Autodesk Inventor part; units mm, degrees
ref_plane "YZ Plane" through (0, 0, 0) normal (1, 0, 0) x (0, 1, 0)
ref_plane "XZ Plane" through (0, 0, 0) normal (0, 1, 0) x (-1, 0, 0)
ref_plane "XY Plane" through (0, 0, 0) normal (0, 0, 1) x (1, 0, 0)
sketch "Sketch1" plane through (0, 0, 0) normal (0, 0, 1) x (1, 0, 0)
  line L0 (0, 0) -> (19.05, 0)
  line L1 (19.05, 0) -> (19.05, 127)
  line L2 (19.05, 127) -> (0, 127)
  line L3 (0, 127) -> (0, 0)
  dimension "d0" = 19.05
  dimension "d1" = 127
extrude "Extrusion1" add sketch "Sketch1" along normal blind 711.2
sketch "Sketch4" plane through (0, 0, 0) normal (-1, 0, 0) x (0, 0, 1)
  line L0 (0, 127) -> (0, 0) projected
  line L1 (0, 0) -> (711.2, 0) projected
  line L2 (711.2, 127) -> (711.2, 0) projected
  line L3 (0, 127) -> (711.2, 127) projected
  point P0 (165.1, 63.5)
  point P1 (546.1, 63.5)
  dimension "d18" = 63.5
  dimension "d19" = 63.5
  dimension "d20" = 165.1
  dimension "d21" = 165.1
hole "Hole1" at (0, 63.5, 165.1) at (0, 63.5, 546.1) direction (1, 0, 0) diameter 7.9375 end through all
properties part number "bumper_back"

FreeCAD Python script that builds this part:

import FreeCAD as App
import Part
import Sketcher
Q = App.Units.Quantity


def add_polygon(sketch, points):
    """Adds a closed chain of lines whose ends are joined by coincident constraints."""
    first, n = sketch.GeometryCount, len(points)
    for a, b in zip(points, points[1:] + points[:1]):
        sketch.addGeometry(Part.LineSegment(App.Vector(*a, 0), App.Vector(*b, 0)), False)
    for i in range(n):
        sketch.addConstraint(Sketcher.Constraint("Coincident", first + i, 2, first + (i + 1) % n, 1))

doc = App.newDocument("Part")
body = doc.addObject("PartDesign::Body", "Body")

# Sketch on XY plane
sketch1 = doc.addObject("Sketcher::SketchObject", "Sketch")
body.addObject(sketch1)
sketch1.AttachmentSupport = (doc.XY_Plane, [""])
sketch1.MapMode = "FlatFace"
add_polygon(sketch1, [(0, 127), (0, 0), (19, 0), (19, 127)])  # lines 0-3
sketch1.addConstraint([
    Sketcher.Constraint("Vertical", 0),
    Sketcher.Constraint("Horizontal", 1),
    Sketcher.Constraint("Vertical", 2),
    Sketcher.Constraint("Horizontal", 3),
    Sketcher.Constraint("Coincident", 0, 2, -1, 1),
    Sketcher.Constraint("DistanceY", 0, 2, 0, 1, Q("5 in")),
    Sketcher.Constraint("DistanceX", 1, 1, 1, 2, Q("0.75 in")),
])
pad1 = doc.addObject("PartDesign::Pad", "Pad")
body.addObject(pad1)
pad1.Profile = sketch1
pad1.Length = Q("28 in")

# Sketch on YZ plane
sketch2 = doc.addObject("Sketcher::SketchObject", "Sketch001")
body.addObject(sketch2)
sketch2.AttachmentSupport = (doc.YZ_Plane, [""])
sketch2.MapMode = "FlatFace"
sketch2.addGeometry([
    Part.Circle(App.Vector(63.5, 165.1, 0), App.Vector(0, 0, 1), 4),
    Part.Circle(App.Vector(63.5, 546.1, 0), App.Vector(0, 0, 1), 4),
], False)
sketch2.addConstraint([
    Sketcher.Constraint("Equal", 0, 1),
    Sketcher.Constraint("Vertical", 0, 3, 1, 3),
    Sketcher.Constraint("Diameter", 0, Q("0.3125 in")),
    Sketcher.Constraint("DistanceY", 0, 3, 1, 3, Q("15 in")),
    Sketcher.Constraint("DistanceX", -1, 1, 0, 3, Q("2.5 in")),
    Sketcher.Constraint("DistanceY", -1, 1, 0, 3, Q("6.5 in")),
])
doc.recompute()
hole = doc.addObject("PartDesign::Hole", "Hole")
body.addObject(hole)
hole.Profile = sketch2
hole.ThreadType = "None"
hole.Diameter = Q("0.3125 in")
hole.DepthType = "ThroughAll"
hole.Reversed = True

doc.recompute()
